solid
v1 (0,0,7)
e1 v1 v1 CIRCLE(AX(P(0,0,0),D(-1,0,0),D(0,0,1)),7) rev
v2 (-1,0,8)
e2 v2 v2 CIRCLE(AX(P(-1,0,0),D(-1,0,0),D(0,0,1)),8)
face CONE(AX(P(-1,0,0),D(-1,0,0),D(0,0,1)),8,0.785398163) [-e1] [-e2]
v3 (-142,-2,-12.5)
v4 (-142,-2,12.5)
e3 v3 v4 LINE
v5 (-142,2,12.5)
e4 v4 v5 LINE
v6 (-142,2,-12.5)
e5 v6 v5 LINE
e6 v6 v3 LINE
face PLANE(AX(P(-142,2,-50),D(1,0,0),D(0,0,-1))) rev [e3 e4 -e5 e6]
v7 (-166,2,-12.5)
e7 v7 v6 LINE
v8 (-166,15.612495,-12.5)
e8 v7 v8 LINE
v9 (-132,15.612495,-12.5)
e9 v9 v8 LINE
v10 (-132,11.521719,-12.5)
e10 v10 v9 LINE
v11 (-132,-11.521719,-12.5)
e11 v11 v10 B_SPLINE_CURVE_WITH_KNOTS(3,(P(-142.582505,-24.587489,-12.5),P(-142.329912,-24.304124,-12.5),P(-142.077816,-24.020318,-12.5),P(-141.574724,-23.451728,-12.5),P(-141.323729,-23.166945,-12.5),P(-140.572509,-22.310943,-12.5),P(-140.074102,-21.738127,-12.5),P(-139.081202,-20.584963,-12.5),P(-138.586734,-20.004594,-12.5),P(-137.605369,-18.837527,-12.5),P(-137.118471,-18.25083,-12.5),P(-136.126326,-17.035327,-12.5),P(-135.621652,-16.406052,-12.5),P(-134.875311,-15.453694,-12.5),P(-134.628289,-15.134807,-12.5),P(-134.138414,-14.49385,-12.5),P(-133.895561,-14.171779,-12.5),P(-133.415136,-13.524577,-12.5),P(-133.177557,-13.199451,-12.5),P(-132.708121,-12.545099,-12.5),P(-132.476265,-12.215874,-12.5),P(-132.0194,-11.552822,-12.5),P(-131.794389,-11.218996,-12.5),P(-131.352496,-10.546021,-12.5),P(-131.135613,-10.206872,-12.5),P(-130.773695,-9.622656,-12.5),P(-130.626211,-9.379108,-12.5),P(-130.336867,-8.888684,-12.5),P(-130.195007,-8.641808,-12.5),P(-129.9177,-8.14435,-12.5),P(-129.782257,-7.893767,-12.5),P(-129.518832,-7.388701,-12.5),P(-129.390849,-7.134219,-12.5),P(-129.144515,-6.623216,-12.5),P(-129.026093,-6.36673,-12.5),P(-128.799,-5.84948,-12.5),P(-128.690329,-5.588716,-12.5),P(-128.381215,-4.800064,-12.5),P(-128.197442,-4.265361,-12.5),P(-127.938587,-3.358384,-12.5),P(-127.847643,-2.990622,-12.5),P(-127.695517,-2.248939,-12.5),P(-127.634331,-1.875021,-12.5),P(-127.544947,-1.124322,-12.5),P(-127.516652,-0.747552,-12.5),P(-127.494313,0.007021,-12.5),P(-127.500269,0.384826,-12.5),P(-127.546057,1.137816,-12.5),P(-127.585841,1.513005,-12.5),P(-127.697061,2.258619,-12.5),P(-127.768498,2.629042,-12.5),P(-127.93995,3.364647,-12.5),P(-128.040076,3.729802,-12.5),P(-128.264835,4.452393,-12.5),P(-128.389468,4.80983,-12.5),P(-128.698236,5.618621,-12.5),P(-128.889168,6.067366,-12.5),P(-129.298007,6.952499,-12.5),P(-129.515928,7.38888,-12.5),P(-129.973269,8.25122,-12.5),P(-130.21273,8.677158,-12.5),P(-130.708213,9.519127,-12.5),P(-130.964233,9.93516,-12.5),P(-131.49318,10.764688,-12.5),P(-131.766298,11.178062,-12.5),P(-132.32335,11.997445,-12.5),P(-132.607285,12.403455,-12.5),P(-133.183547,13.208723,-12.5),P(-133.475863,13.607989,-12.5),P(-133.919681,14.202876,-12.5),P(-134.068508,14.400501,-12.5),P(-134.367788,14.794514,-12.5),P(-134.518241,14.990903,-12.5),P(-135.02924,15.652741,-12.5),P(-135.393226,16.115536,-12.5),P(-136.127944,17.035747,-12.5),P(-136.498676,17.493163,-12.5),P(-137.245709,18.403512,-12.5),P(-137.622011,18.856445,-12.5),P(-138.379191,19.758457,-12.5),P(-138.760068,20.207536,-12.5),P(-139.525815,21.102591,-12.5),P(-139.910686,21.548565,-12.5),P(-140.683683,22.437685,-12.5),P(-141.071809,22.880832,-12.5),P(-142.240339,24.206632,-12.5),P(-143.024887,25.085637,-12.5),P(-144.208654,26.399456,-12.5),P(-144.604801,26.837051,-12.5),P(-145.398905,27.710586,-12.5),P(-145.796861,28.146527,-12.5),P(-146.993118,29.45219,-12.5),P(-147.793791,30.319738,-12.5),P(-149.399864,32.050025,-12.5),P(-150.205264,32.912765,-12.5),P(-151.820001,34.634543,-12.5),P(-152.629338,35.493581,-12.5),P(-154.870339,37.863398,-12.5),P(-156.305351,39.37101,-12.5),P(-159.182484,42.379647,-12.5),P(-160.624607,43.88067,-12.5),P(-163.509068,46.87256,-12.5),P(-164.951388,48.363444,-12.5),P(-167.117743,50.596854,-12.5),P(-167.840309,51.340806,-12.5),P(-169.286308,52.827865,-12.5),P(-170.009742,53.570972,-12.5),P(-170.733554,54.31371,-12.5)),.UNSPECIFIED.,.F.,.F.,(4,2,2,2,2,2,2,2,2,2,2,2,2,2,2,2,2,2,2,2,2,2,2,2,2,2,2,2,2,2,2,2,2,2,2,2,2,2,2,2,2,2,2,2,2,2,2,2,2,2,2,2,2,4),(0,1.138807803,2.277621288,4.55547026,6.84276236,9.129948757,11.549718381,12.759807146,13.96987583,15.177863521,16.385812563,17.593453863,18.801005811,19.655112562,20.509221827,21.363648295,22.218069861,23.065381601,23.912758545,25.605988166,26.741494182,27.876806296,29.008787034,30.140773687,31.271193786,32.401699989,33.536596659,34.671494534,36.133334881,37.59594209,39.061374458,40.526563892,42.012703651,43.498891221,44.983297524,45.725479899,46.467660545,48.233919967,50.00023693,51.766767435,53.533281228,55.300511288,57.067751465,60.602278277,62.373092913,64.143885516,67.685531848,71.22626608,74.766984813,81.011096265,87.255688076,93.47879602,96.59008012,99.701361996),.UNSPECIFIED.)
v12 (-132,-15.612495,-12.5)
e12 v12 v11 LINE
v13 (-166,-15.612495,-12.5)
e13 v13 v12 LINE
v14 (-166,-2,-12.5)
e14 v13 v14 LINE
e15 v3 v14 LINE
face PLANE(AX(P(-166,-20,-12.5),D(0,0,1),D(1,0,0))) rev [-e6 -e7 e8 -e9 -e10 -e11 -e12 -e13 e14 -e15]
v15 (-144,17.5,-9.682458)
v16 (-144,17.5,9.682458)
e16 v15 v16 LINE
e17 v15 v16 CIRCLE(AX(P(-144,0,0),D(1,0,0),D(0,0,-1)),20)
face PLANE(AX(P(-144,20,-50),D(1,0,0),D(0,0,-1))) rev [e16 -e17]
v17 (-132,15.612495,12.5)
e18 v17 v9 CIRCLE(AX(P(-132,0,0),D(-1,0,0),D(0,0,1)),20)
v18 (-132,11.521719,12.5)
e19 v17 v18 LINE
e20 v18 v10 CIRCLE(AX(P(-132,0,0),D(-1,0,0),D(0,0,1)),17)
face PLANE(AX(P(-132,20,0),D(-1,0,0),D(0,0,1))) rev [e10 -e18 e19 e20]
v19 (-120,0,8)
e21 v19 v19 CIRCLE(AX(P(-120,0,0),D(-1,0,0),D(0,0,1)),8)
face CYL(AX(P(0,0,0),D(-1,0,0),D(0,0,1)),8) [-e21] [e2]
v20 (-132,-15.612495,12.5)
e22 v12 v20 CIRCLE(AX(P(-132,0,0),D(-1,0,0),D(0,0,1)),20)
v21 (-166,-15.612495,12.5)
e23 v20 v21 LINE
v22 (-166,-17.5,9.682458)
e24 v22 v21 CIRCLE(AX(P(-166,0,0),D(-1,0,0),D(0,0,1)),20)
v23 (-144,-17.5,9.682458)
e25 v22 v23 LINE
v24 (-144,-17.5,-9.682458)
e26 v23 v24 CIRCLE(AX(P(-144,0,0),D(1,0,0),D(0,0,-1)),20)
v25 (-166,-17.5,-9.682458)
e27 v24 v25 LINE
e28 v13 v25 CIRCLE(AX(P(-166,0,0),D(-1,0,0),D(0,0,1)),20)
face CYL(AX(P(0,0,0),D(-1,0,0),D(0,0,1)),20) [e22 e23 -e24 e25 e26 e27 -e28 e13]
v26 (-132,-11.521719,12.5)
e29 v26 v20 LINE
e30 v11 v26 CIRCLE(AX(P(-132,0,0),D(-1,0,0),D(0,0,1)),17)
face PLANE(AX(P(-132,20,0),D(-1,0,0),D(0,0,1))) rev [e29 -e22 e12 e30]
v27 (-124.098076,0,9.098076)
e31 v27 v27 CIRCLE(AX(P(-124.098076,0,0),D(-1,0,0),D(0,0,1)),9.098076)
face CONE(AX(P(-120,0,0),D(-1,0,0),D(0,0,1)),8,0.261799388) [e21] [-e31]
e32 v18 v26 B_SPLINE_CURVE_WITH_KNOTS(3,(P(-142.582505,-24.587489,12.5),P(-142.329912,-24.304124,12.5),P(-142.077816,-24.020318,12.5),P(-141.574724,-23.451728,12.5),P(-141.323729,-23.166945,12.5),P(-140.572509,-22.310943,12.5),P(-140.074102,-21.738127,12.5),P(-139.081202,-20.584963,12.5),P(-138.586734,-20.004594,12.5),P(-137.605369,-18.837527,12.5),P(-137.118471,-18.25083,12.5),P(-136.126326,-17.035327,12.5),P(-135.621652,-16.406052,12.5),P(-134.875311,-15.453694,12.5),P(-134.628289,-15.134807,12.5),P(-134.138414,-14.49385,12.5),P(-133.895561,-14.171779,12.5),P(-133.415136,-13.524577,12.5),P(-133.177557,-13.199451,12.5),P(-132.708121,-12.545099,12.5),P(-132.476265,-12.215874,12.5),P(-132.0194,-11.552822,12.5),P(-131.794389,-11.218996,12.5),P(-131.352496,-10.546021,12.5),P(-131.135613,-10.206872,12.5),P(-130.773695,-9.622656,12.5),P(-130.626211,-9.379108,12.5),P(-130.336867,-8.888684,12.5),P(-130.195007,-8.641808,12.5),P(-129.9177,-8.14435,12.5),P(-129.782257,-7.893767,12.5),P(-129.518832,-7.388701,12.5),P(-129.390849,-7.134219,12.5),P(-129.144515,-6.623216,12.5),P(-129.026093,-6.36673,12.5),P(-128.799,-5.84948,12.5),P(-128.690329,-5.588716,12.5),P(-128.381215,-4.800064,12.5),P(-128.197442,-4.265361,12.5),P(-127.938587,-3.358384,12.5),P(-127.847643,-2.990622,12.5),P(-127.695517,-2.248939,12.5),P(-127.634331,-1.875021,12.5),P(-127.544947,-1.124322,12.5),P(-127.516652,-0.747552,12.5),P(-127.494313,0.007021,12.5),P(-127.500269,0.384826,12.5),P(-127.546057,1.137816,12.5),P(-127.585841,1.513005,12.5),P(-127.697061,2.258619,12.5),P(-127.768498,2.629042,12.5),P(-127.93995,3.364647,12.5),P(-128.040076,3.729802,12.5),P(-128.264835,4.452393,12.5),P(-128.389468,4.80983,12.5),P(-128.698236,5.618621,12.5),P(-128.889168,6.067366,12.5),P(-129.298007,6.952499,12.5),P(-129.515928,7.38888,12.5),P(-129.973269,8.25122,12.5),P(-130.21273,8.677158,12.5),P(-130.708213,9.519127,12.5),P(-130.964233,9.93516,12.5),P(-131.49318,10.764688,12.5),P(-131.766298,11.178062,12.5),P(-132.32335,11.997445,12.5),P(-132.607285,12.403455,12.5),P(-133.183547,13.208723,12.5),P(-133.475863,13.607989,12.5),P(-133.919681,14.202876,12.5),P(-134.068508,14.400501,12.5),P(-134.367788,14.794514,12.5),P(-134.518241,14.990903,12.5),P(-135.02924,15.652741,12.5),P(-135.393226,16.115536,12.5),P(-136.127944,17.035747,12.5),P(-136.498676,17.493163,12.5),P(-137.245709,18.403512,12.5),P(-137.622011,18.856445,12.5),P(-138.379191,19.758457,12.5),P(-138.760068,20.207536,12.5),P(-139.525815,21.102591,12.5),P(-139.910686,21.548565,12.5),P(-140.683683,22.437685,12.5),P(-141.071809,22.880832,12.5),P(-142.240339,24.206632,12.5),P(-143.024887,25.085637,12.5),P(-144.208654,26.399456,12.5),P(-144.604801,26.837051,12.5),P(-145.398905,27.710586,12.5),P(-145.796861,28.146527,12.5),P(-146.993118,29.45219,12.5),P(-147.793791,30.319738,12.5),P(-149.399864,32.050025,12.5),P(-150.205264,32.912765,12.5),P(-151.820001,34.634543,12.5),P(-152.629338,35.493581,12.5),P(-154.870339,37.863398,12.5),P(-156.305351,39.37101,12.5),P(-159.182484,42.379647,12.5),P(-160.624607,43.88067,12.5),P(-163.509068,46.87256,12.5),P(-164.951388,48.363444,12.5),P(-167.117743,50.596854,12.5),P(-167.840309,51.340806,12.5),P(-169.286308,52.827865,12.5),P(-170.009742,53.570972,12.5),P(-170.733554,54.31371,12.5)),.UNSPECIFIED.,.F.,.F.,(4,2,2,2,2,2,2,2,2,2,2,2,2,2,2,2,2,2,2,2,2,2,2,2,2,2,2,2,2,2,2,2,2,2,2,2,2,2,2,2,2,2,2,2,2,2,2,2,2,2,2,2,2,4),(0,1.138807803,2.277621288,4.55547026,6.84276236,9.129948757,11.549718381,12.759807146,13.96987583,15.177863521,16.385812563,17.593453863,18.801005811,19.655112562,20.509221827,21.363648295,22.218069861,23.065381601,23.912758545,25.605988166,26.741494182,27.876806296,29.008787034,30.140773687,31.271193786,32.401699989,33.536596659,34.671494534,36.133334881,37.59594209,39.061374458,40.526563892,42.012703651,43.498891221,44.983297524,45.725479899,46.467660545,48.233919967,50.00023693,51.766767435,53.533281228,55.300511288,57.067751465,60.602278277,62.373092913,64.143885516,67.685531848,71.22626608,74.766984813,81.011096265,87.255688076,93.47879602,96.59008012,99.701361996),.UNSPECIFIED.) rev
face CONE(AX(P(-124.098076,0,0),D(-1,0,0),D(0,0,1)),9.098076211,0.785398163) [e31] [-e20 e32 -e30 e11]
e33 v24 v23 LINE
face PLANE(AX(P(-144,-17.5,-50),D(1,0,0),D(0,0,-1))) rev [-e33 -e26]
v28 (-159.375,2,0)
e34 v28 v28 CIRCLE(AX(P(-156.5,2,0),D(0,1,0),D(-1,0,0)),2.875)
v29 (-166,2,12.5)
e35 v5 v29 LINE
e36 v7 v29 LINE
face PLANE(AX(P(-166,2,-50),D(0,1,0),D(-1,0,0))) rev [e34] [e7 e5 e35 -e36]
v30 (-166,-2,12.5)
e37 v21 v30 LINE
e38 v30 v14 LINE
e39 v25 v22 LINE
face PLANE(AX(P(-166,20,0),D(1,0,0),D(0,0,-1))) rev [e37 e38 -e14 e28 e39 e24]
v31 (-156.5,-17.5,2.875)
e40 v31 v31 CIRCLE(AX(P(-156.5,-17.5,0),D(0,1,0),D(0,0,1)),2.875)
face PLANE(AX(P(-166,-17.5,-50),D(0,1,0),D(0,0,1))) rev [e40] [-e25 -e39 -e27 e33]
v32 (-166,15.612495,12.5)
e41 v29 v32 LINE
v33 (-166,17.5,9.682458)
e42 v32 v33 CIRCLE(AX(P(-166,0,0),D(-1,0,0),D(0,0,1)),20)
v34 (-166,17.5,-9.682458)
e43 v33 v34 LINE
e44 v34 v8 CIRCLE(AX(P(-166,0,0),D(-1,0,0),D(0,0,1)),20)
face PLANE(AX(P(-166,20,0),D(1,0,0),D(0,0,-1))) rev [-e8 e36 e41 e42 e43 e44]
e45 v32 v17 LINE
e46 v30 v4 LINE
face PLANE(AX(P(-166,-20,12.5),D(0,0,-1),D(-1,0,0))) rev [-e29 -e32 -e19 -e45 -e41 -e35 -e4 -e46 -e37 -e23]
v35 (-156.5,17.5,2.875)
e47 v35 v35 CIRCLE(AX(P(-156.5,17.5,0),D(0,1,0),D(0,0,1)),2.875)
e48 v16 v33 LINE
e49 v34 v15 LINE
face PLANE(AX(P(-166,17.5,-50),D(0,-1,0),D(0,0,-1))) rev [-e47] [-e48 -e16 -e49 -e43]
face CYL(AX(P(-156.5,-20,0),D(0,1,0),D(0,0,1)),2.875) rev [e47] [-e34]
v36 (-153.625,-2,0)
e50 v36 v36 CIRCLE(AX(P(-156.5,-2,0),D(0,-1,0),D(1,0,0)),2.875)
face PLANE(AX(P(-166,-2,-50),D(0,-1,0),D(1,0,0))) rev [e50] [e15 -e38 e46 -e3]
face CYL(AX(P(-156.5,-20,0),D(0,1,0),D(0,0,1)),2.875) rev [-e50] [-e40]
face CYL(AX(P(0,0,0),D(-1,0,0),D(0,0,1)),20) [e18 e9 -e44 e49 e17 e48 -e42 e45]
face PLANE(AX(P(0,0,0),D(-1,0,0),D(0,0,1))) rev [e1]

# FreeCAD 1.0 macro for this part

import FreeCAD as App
import Part
import Sketcher
from FreeCAD import Vector
Q = App.Units.Quantity


def edges_at(feature, points):
    """Names of the edges that pass closest to the given points."""
    edges = feature.Shape.Edges
    near = lambda p: min(range(len(edges)), key=lambda i: edges[i].distToShape(Part.Vertex(*p))[0])
    return sorted({f"Edge{near(p) + 1}" for p in points})

doc = App.newDocument("Part")
body = doc.addObject("PartDesign::Body", "Body")

# Sketch on XY plane
sketch1 = body.newObject("Sketcher::SketchObject", "Sketch")
sketch1.AttachmentSupport = (doc.getObject("XY_Plane"), [""])
sketch1.MapMode = "FlatFace"
sketch1.addGeometry([
    Part.LineSegment(Vector(0, 0, 0), Vector(0, 8, 0)),  # 0
    Part.LineSegment(Vector(0, 8, 0), Vector(-120, 8, 0)),  # 1
    Part.LineSegment(Vector(-120, 8, 0), Vector(-124.1, 9.1, 0)),  # 2
    Part.LineSegment(Vector(-124.1, 9.1, 0), Vector(-132, 17, 0)),  # 3
    Part.LineSegment(Vector(-132, 17, 0), Vector(-132, 20, 0)),  # 4
    Part.LineSegment(Vector(-132, 20, 0), Vector(-166, 20, 0)),  # 5
    Part.LineSegment(Vector(-166, 20, 0), Vector(-166, 0, 0)),  # 6
    Part.LineSegment(Vector(-166, 0, 0), Vector(0, 0, 0)),  # 7
], False)
sketch1.addConstraint([
    Sketcher.Constraint("Coincident", 0, 2, 1, 1),
    Sketcher.Constraint("Coincident", 1, 2, 2, 1),
    Sketcher.Constraint("Coincident", 2, 2, 3, 1),
    Sketcher.Constraint("Coincident", 3, 2, 4, 1),
    Sketcher.Constraint("Coincident", 4, 2, 5, 1),
    Sketcher.Constraint("Coincident", 5, 2, 6, 1),
    Sketcher.Constraint("Coincident", 6, 2, 7, 1),
    Sketcher.Constraint("Coincident", 7, 2, 0, 1),
    Sketcher.Constraint("Vertical", 0),
    Sketcher.Constraint("Horizontal", 1),
    Sketcher.Constraint("Vertical", 4),
    Sketcher.Constraint("Horizontal", 5),
    Sketcher.Constraint("Vertical", 6),
    Sketcher.Constraint("Horizontal", 7),
    Sketcher.Constraint("Coincident", 7, 2, -1, 1),
    Sketcher.Constraint("DistanceX", 1, 2, 1, 1, 120.0),
    Sketcher.Constraint("DistanceX", 5, 2, 5, 1, 34.0),
    Sketcher.Constraint("DistanceX", 7, 1, 7, 2, 166.0),
    Sketcher.Constraint("DistanceY", 0, 1, 0, 2, 8.0),
    Sketcher.Constraint("DistanceY", 4, 1, 4, 2, 3.0),
    Sketcher.Constraint("DistanceY", 6, 2, 6, 1, 20.0),
    Sketcher.Constraint("Angle", 2, Q("165 deg")),
    Sketcher.Constraint("Angle", 3, Q("135 deg")),
])
revolution = body.newObject("PartDesign::Revolution", "Revolution")
revolution.Profile = sketch1
revolution.ReferenceAxis = (sketch1, ["H_Axis"])
revolution.Angle = 360

# Sketch on XY plane
sketch2 = body.newObject("Sketcher::SketchObject", "Sketch001")
sketch2.AttachmentSupport = (doc.getObject("XY_Plane"), [""])
sketch2.MapMode = "FlatFace"
sketch2.addGeometry([
    Part.LineSegment(Vector(-166, 20, 0), Vector(-166, 17.5, 0)),  # 0
    Part.LineSegment(Vector(-166, 17.5, 0), Vector(-144, 17.5, 0)),  # 1
    Part.LineSegment(Vector(-144, 17.5, 0), Vector(-144, 20, 0)),  # 2
    Part.LineSegment(Vector(-144, 20, 0), Vector(-166, 20, 0)),  # 3
    Part.LineSegment(Vector(-166, 2, 0), Vector(-166, -2, 0)),  # 4
    Part.LineSegment(Vector(-166, -2, 0), Vector(-142, -2, 0)),  # 5
    Part.LineSegment(Vector(-142, -2, 0), Vector(-142, 2, 0)),  # 6
    Part.LineSegment(Vector(-142, 2, 0), Vector(-166, 2, 0)),  # 7
    Part.LineSegment(Vector(-166, -17.5, 0), Vector(-166, -20, 0)),  # 8
    Part.LineSegment(Vector(-166, -20, 0), Vector(-144, -20, 0)),  # 9
    Part.LineSegment(Vector(-144, -20, 0), Vector(-144, -17.5, 0)),  # 10
    Part.LineSegment(Vector(-144, -17.5, 0), Vector(-166, -17.5, 0)),  # 11
], False)
sketch2.addConstraint([
    Sketcher.Constraint("Coincident", 0, 2, 1, 1),
    Sketcher.Constraint("Coincident", 1, 2, 2, 1),
    Sketcher.Constraint("Coincident", 2, 2, 3, 1),
    Sketcher.Constraint("Coincident", 3, 2, 0, 1),
    Sketcher.Constraint("Coincident", 4, 2, 5, 1),
    Sketcher.Constraint("Coincident", 5, 2, 6, 1),
    Sketcher.Constraint("Coincident", 6, 2, 7, 1),
    Sketcher.Constraint("Coincident", 7, 2, 4, 1),
    Sketcher.Constraint("Coincident", 8, 2, 9, 1),
    Sketcher.Constraint("Coincident", 9, 2, 10, 1),
    Sketcher.Constraint("Coincident", 10, 2, 11, 1),
    Sketcher.Constraint("Coincident", 11, 2, 8, 1),
    Sketcher.Constraint("Vertical", 0),
    Sketcher.Constraint("Horizontal", 1),
    Sketcher.Constraint("Vertical", 2),
    Sketcher.Constraint("Horizontal", 3),
    Sketcher.Constraint("Vertical", 4),
    Sketcher.Constraint("Horizontal", 5),
    Sketcher.Constraint("Vertical", 6),
    Sketcher.Constraint("Horizontal", 7),
    Sketcher.Constraint("Vertical", 8),
    Sketcher.Constraint("Horizontal", 9),
    Sketcher.Constraint("Vertical", 10),
    Sketcher.Constraint("Horizontal", 11),
    Sketcher.Constraint("Symmetric", 3, 2, 8, 2, -1),
    Sketcher.Constraint("Symmetric", 1, 2, 10, 2, -1),
    Sketcher.Constraint("Vertical", 3, 2, 4, 2),
    Sketcher.Constraint("DistanceX", 1, 1, 1, 2, 22.0),
    Sketcher.Constraint("DistanceX", 5, 1, 5, 2, 24.0),
    Sketcher.Constraint("DistanceY", 4, 2, 4, 1, 4.0),
    Sketcher.Constraint("DistanceY", 0, 2, 0, 1, 2.5),
    Sketcher.Constraint("DistanceX", 0, 2, -1, 1, 166.0),
    Sketcher.Constraint("DistanceY", -1, 1, 2, 2, 20.0),
    Sketcher.Constraint("DistanceY", 4, 2, -1, 1, 2.0),
])
pocket1 = body.newObject("PartDesign::Pocket", "Pocket")
pocket1.Profile = sketch2
pocket1.Length = 100
pocket1.Midplane = True

# Sketch on XZ plane
sketch3 = body.newObject("Sketcher::SketchObject", "Sketch002")
sketch3.AttachmentSupport = (doc.getObject("XZ_Plane"), [""])
sketch3.MapMode = "FlatFace"
sketch3.AttachmentOffset = App.Placement(Vector(0, 0, -17.5), App.Rotation())
sketch3.addGeometry([
    Part.Circle(Vector(-156.5, 0, 0), Vector(0, 0, 1), 2.9),  # 0
    Part.LineSegment(Vector(-166, 12.5, 0), Vector(-166, 20, 0)),  # 1
    Part.LineSegment(Vector(-166, 20, 0), Vector(-127.5, 20, 0)),  # 2
    Part.LineSegment(Vector(-127.5, 20, 0), Vector(-127.5, 12.5, 0)),  # 3
    Part.LineSegment(Vector(-127.5, 12.5, 0), Vector(-166, 12.5, 0)),  # 4
    Part.LineSegment(Vector(-166, -20, 0), Vector(-166, -12.5, 0)),  # 5
    Part.LineSegment(Vector(-166, -12.5, 0), Vector(-127.5, -12.5, 0)),  # 6
    Part.LineSegment(Vector(-127.5, -12.5, 0), Vector(-127.5, -20, 0)),  # 7
    Part.LineSegment(Vector(-127.5, -20, 0), Vector(-166, -20, 0)),  # 8
], False)
sketch3.addConstraint([
    Sketcher.Constraint("Coincident", 1, 2, 2, 1),
    Sketcher.Constraint("Coincident", 2, 2, 3, 1),
    Sketcher.Constraint("Coincident", 3, 2, 4, 1),
    Sketcher.Constraint("Coincident", 4, 2, 1, 1),
    Sketcher.Constraint("Coincident", 5, 2, 6, 1),
    Sketcher.Constraint("Coincident", 6, 2, 7, 1),
    Sketcher.Constraint("Coincident", 7, 2, 8, 1),
    Sketcher.Constraint("Coincident", 8, 2, 5, 1),
    Sketcher.Constraint("Vertical", 1),
    Sketcher.Constraint("Horizontal", 2),
    Sketcher.Constraint("Vertical", 3),
    Sketcher.Constraint("Horizontal", 4),
    Sketcher.Constraint("Vertical", 5),
    Sketcher.Constraint("Horizontal", 6),
    Sketcher.Constraint("Vertical", 7),
    Sketcher.Constraint("Horizontal", 8),
    Sketcher.Constraint("Symmetric", 4, 2, 5, 2, -1),
    Sketcher.Constraint("Symmetric", 2, 2, 7, 2, -1),
    Sketcher.Constraint("PointOnObject", 0, 3, -1),
    Sketcher.Constraint("Diameter", 0, 5.75),
    Sketcher.Constraint("DistanceX", 2, 1, 2, 2, 38.5),
    Sketcher.Constraint("DistanceY", 1, 1, 1, 2, 7.5),
    Sketcher.Constraint("DistanceX", 1, 2, -1, 1, 166.0),
    Sketcher.Constraint("DistanceY", -1, 1, 1, 2, 20.0),
    Sketcher.Constraint("DistanceX", 0, 3, 2, 2, 29.0),
])
pocket2 = body.newObject("PartDesign::Pocket", "Pocket001")
pocket2.Profile = sketch3
pocket2.Type = "ThroughAll"
pocket2.Reversed = True
doc.recompute()

chamfer = body.newObject("PartDesign::Chamfer", "Chamfer")
chamfer.Base = (pocket2, edges_at(pocket2, [(0, 0, -8)]))
chamfer.Size = 1

doc.recompute()
